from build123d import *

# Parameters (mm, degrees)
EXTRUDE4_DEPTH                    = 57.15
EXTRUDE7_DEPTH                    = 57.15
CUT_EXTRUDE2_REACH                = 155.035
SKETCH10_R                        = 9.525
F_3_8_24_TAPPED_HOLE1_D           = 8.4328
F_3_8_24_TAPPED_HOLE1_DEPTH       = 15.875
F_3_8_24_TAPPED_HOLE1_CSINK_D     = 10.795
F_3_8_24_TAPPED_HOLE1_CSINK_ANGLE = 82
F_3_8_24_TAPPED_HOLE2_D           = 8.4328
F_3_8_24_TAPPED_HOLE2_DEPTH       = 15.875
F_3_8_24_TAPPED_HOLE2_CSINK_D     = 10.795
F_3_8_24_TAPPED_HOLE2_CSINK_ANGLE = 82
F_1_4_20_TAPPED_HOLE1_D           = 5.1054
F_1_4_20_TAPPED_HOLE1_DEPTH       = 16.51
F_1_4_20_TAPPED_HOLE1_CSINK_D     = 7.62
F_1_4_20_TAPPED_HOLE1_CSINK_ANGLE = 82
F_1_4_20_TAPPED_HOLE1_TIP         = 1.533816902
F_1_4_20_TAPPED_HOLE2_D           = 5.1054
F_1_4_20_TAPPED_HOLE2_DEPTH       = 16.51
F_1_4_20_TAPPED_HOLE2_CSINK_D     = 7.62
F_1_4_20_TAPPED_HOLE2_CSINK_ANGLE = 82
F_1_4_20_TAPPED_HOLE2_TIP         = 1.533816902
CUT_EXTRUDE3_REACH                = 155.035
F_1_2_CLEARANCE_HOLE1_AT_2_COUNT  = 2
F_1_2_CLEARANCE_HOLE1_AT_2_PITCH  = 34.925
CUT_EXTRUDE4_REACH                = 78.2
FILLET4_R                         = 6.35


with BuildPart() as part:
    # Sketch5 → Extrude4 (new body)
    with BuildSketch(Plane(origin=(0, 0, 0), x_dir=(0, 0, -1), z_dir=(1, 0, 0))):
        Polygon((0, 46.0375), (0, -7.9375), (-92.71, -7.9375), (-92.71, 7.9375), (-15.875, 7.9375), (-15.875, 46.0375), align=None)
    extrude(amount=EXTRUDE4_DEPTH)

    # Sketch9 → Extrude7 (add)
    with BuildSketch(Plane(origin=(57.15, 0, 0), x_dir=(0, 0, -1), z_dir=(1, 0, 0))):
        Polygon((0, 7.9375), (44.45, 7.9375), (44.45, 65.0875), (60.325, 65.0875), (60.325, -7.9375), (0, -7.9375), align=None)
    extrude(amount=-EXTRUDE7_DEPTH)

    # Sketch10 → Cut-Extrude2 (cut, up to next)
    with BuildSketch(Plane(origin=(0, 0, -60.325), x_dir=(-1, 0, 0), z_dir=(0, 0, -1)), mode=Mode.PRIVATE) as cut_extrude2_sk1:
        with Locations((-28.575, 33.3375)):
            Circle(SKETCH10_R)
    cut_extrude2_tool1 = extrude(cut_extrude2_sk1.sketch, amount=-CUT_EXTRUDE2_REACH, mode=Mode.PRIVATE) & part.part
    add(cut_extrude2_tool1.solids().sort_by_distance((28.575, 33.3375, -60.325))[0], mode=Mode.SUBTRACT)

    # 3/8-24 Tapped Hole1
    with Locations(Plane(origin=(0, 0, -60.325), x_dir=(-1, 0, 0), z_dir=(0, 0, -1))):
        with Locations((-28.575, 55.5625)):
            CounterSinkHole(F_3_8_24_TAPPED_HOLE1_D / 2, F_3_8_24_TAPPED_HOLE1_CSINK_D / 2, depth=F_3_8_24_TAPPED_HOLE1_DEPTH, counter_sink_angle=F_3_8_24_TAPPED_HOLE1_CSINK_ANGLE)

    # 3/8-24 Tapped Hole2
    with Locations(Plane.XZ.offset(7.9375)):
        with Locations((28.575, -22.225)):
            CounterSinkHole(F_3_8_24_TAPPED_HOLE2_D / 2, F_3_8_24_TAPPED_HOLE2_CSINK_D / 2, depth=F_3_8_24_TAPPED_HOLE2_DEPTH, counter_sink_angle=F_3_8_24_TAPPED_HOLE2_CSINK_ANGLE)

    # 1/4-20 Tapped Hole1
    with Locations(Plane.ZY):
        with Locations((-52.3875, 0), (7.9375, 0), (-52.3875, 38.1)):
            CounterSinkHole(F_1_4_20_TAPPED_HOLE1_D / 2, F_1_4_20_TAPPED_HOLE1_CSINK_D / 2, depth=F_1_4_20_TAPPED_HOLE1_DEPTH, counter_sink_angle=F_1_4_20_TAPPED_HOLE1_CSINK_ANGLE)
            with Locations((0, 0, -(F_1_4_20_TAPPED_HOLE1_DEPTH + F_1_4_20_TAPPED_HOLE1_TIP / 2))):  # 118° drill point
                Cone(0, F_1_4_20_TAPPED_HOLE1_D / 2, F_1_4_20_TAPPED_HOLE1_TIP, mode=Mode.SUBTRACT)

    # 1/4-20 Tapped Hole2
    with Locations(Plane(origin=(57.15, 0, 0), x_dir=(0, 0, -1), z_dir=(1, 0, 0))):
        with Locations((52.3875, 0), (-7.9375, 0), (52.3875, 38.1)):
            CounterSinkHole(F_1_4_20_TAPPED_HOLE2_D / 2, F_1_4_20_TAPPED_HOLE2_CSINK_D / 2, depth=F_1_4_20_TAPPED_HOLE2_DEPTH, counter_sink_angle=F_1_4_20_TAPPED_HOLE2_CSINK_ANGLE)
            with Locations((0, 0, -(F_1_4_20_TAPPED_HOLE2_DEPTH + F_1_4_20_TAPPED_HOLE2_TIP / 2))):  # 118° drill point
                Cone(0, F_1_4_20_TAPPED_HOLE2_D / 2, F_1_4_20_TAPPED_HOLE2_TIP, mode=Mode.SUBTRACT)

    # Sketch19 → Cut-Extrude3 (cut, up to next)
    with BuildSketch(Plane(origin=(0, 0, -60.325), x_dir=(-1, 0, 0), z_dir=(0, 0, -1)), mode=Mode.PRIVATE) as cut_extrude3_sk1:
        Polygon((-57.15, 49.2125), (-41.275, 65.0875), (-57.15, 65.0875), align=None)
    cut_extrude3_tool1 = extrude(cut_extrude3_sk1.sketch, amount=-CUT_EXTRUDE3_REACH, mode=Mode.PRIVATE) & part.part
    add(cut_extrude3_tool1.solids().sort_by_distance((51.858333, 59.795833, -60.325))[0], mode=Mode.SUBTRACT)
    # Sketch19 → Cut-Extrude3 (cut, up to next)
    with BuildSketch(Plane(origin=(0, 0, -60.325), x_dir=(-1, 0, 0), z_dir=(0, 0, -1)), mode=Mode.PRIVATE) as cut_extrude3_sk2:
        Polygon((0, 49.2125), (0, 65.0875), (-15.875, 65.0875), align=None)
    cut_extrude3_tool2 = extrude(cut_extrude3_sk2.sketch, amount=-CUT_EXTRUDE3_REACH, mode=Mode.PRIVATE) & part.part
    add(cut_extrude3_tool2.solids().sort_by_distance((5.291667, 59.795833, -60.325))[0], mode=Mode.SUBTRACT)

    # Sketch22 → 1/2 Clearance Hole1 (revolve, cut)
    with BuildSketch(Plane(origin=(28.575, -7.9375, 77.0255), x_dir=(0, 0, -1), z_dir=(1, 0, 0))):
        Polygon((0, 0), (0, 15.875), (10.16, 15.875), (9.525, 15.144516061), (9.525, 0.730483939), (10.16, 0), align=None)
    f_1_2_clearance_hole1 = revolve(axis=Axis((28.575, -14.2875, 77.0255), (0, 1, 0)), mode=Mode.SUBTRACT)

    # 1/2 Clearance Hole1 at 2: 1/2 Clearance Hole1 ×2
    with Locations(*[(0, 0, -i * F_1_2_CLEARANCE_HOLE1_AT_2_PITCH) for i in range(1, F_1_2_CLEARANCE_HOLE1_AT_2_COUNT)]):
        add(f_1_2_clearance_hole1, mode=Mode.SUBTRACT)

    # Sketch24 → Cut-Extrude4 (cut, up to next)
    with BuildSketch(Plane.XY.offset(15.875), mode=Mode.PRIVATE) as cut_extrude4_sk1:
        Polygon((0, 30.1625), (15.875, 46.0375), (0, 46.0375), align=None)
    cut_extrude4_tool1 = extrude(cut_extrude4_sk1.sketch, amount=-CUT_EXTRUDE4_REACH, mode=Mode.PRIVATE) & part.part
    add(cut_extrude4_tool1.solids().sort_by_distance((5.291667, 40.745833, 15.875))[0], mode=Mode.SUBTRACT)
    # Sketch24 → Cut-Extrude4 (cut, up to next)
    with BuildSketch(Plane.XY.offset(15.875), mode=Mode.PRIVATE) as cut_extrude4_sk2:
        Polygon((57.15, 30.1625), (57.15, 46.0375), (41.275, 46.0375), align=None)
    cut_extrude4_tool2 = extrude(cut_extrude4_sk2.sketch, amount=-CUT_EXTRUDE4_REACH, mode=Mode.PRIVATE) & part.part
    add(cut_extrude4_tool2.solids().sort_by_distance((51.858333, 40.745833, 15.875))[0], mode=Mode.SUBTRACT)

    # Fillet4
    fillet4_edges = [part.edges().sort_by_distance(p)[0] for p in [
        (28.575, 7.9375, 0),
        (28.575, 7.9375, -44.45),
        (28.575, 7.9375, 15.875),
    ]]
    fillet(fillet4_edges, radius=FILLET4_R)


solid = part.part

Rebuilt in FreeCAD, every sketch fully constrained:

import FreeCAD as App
import Part
import Sketcher
Q = App.Units.Quantity


def edges_at(feature, points):
    """Names of the edges that pass closest to the given points."""
    edges = feature.Shape.Edges
    near = lambda p: min(range(len(edges)), key=lambda i: edges[i].distToShape(Part.Vertex(*p))[0])
    return sorted({f"Edge{near(p) + 1}" for p in points})


def add_polygon(sketch, points):
    """Adds a closed chain of lines whose ends are joined by coincident constraints."""
    first, n = sketch.GeometryCount, len(points)
    for a, b in zip(points, points[1:] + points[:1]):
        sketch.addGeometry(Part.LineSegment(App.Vector(*a, 0), App.Vector(*b, 0)), False)
    for i in range(n):
        sketch.addConstraint(Sketcher.Constraint("Coincident", first + i, 2, first + (i + 1) % n, 1))

doc = App.newDocument("Part")
params = doc.addObject("Spreadsheet::Sheet", "Params")
for row, (alias, value) in enumerate([
    ("sketch1_width", "1.5 in"),
    ("sketch1_height", "3.65 in"),
    ("sketch1_width2", "2.125 in"),
    ("pad1_length", "2.25 in"),
    ("sketch2_width", "2.25 in"),
    ("sketch2_height", "1.75 in"),
    ("sketch2_width2", "0.625 in"),
    ("pad2_length", "2.25 in"),
    ("sketch3_diameter", "0.75 in"),
    ("sketch4_diameter", "0.332 in"),
    ("hole_diameter", "0.332 in"),
    ("hole_depth", "0.625 in"),
    ("hole_csink_diameter", "0.425 in"),
    ("sketch5_diameter", "0.332 in"),
    ("hole2_diameter", "0.332 in"),
    ("hole2_depth", "0.625 in"),
    ("hole2_csink_diameter", "0.425 in"),
    ("sketch6_diameter", "0.201 in"),
    ("hole3_diameter", "0.201 in"),
    ("hole3_depth", "0.65 in"),
    ("hole3_csink_diameter", "0.3 in"),
    ("sketch7_diameter", "0.201 in"),
    ("hole4_diameter", "0.201 in"),
    ("hole4_depth", "0.65 in"),
    ("hole4_csink_diameter", "0.3 in"),
    ("sketch8_width", "0.625 in"),
    ("sketch9_width", "0.625 in"),
    ("sketch10_height", "0.4 in"),
    ("sketch10_width", "0.625 in"),
    ("groove_angle", "360 deg"),
    ("linearpattern_pitch", "1.375 in"),
    ("sketch11_width", "0.625 in"),
    ("sketch12_width", "0.625 in"),
    ("fillet_radius", "0.25 in"),
], start=1):
    params.set(f"A{row}", alias)
    params.set(f"B{row}", "=" + value)
    params.setAlias(f"B{row}", alias)

body = doc.addObject("PartDesign::Body", "Body")

sketch1 = body.newObject("Sketcher::SketchObject", "Sketch")
sketch1.AttachmentSupport = (doc.getObject("YZ_Plane"), [""])
sketch1.MapMode = "FlatFace"
add_polygon(sketch1, [(-7.9375, 0), (46.0375, 0), (46.0375, 15.875), (7.9375, 15.875), (7.9375, 92.71), (-7.9375, 92.71)])
sketch1.addConstraint(Sketcher.Constraint("Horizontal", 0))
sketch1.addConstraint(Sketcher.Constraint("Vertical", 1))
sketch1.addConstraint(Sketcher.Constraint("Horizontal", 2))
sketch1.addConstraint(Sketcher.Constraint("Vertical", 3))
sketch1.addConstraint(Sketcher.Constraint("Horizontal", 4))
sketch1.addConstraint(Sketcher.Constraint("Vertical", 5))
sketch1.addConstraint(Sketcher.Constraint("PointOnObject", 0, 2, -1))
sketch1.addConstraint(Sketcher.Constraint("Equal", 4, 1))
sketch1.addConstraint(Sketcher.Constraint("DistanceX", 2, 2, 2, 1, Q("1.5 in")))
sketch1.addConstraint(Sketcher.Constraint("DistanceY", 5, 2, 5, 1, Q("3.65 in")))
sketch1.addConstraint(Sketcher.Constraint("DistanceX", 0, 1, 0, 2, Q("2.125 in")))
sketch1.addConstraint(Sketcher.Constraint("DistanceX", -1, 1, 0, 2, Q("1.8125 in")))
sketch1.setExpression("Constraints[14]", "Params.sketch1_width")
sketch1.setExpression("Constraints[15]", "Params.sketch1_height")
sketch1.setExpression("Constraints[16]", "Params.sketch1_width2")
pad1 = body.newObject("PartDesign::Pad", "Pad")
pad1.Profile = sketch1
pad1.setExpression("Length", "Params.pad1_length")

sketch2 = body.newObject("Sketcher::SketchObject", "Sketch001")
sketch2.AttachmentSupport = (doc.getObject("YZ_Plane"), [""])
sketch2.MapMode = "FlatFace"
sketch2.AttachmentOffset = App.Placement(App.Vector(0, 0, 2.25 * 25.4), App.Rotation())
add_polygon(sketch2, [(7.9375, -44.45), (7.9375, 0), (-7.9375, 0), (-7.9375, -60.325), (65.0875, -60.325), (65.0875, -44.45)])
sketch2.addConstraint(Sketcher.Constraint("Vertical", 0))
sketch2.addConstraint(Sketcher.Constraint("Horizontal", 1))
sketch2.addConstraint(Sketcher.Constraint("Vertical", 2))
sketch2.addConstraint(Sketcher.Constraint("Horizontal", 3))
sketch2.addConstraint(Sketcher.Constraint("Vertical", 4))
sketch2.addConstraint(Sketcher.Constraint("Horizontal", 5))
sketch2.addConstraint(Sketcher.Constraint("Symmetric", 0, 2, 1, 2, -1, 1))
sketch2.addConstraint(Sketcher.Constraint("Equal", 1, 4))
sketch2.addConstraint(Sketcher.Constraint("DistanceX", 5, 2, 5, 1, Q("2.25 in")))
sketch2.addConstraint(Sketcher.Constraint("DistanceY", 0, 1, 0, 2, Q("1.75 in")))
sketch2.addConstraint(Sketcher.Constraint("DistanceX", 1, 2, 1, 1, Q("0.625 in")))
sketch2.setExpression("Constraints[14]", "Params.sketch2_width")
sketch2.setExpression("Constraints[15]", "Params.sketch2_height")
sketch2.setExpression("Constraints[16]", "Params.sketch2_width2")
pad2 = body.newObject("PartDesign::Pad", "Pad001")
pad2.Profile = sketch2
pad2.setExpression("Length", "Params.pad2_length")
pad2.Reversed = True

sketch3 = body.newObject("Sketcher::SketchObject", "Sketch002")
sketch3.AttachmentSupport = (doc.getObject("XY_Plane"), [""])
sketch3.MapMode = "FlatFace"
sketch3.AttachmentOffset = App.Placement(App.Vector(0, 0, -2.375 * 25.4), App.Rotation())
sketch3.addGeometry(Part.Circle(App.Vector(28.575, 33.3375, 0), App.Vector(0, 0, 1), 9.525), False)
sketch3.addConstraint(Sketcher.Constraint("Diameter", 0, Q("0.75 in")))
sketch3.addConstraint(Sketcher.Constraint("DistanceX", -1, 1, 0, 3, Q("1.125 in")))
sketch3.addConstraint(Sketcher.Constraint("DistanceY", -1, 1, 0, 3, Q("1.3125 in")))
sketch3.setExpression("Constraints[0]", "Params.sketch3_diameter")
pocket1 = body.newObject("PartDesign::Pocket", "Pocket")
pocket1.Profile = sketch3
pocket1.Type = "UpToFirst"
pocket1.Reversed = True

sketch4 = body.newObject("Sketcher::SketchObject", "Sketch003")
sketch4.AttachmentSupport = (doc.getObject("XY_Plane"), [""])
sketch4.MapMode = "FlatFace"
sketch4.AttachmentOffset = App.Placement(App.Vector(0, 0, -2.375 * 25.4), App.Rotation())
sketch4.addGeometry(Part.Circle(App.Vector(28.575, 55.5625, 0), App.Vector(0, 0, 1), 4.2164), False)
sketch4.addConstraint(Sketcher.Constraint("Diameter", 0, Q("0.332 in")))
sketch4.addConstraint(Sketcher.Constraint("DistanceX", -1, 1, 0, 3, Q("1.125 in")))
sketch4.addConstraint(Sketcher.Constraint("DistanceY", -1, 1, 0, 3, Q("2.1875 in")))
sketch4.setExpression("Constraints[0]", "Params.sketch4_diameter")
doc.recompute()
hole = body.newObject("PartDesign::Hole", "Hole")
hole.Profile = sketch4
hole.ThreadType = "None"
hole.setExpression("Diameter", "Params.hole_diameter")
hole.DepthType = "Dimension"
hole.setExpression("Depth", "Params.hole_depth")
hole.DrillPoint = "Flat"
hole.HoleCutType = "Countersink"
hole.setExpression("HoleCutDiameter", "Params.hole_csink_diameter")
hole.HoleCutCountersinkAngle = 82
hole.Reversed = True

sketch5 = body.newObject("Sketcher::SketchObject", "Sketch004")
sketch5.AttachmentSupport = (doc.getObject("XZ_Plane"), [""])
sketch5.MapMode = "FlatFace"
sketch5.AttachmentOffset = App.Placement(App.Vector(0, 0, 0.3125 * 25.4), App.Rotation())
sketch5.addGeometry(Part.Circle(App.Vector(28.575, -22.225, 0), App.Vector(0, 0, 1), 4.2164), False)
sketch5.addConstraint(Sketcher.Constraint("Diameter", 0, Q("0.332 in")))
sketch5.addConstraint(Sketcher.Constraint("DistanceX", -1, 1, 0, 3, Q("1.125 in")))
sketch5.addConstraint(Sketcher.Constraint("DistanceY", 0, 3, -1, 1, Q("0.875 in")))
sketch5.setExpression("Constraints[0]", "Params.sketch5_diameter")
doc.recompute()
hole2 = body.newObject("PartDesign::Hole", "Hole001")
hole2.Profile = sketch5
hole2.ThreadType = "None"
hole2.setExpression("Diameter", "Params.hole2_diameter")
hole2.DepthType = "Dimension"
hole2.setExpression("Depth", "Params.hole2_depth")
hole2.DrillPoint = "Flat"
hole2.HoleCutType = "Countersink"
hole2.setExpression("HoleCutDiameter", "Params.hole2_csink_diameter")
hole2.HoleCutCountersinkAngle = 82

sketch6 = body.newObject("Sketcher::SketchObject", "Sketch005")
sketch6.AttachmentSupport = (doc.getObject("YZ_Plane"), [""])
sketch6.MapMode = "FlatFace"
sketch6.addGeometry(Part.Circle(App.Vector(0, -52.3875, 0), App.Vector(0, 0, 1), 2.5527), False)
sketch6.addGeometry(Part.Circle(App.Vector(0, 7.9375, 0), App.Vector(0, 0, 1), 2.5527), False)
sketch6.addGeometry(Part.Circle(App.Vector(38.1, -52.3875, 0), App.Vector(0, 0, 1), 2.5527), False)
sketch6.addConstraint(Sketcher.Constraint("Equal", 0, 1))
sketch6.addConstraint(Sketcher.Constraint("Equal", 1, 2))
sketch6.addConstraint(Sketcher.Constraint("PointOnObject", 0, 3, -2))
sketch6.addConstraint(Sketcher.Constraint("PointOnObject", 1, 3, -2))
sketch6.addConstraint(Sketcher.Constraint("Horizontal", 0, 3, 2, 3))
sketch6.addConstraint(Sketcher.Constraint("Diameter", 0, Q("0.201 in")))
sketch6.addConstraint(Sketcher.Constraint("DistanceX", -1, 1, 2, 3, Q("1.5 in")))
sketch6.addConstraint(Sketcher.Constraint("DistanceY", 0, 3, -1, 1, Q("2.0625 in")))
sketch6.addConstraint(Sketcher.Constraint("DistanceY", -1, 1, 1, 3, Q("0.3125 in")))
sketch6.setExpression("Constraints[5]", "Params.sketch6_diameter")
doc.recompute()
hole3 = body.newObject("PartDesign::Hole", "Hole002")
hole3.Profile = sketch6
hole3.ThreadType = "None"
hole3.setExpression("Diameter", "Params.hole3_diameter")
hole3.DepthType = "Dimension"
hole3.setExpression("Depth", "Params.hole3_depth")
hole3.DrillPoint = "Angled"
hole3.DrillPointAngle = 118
hole3.HoleCutType = "Countersink"
hole3.setExpression("HoleCutDiameter", "Params.hole3_csink_diameter")
hole3.HoleCutCountersinkAngle = 82
hole3.Reversed = True

sketch7 = body.newObject("Sketcher::SketchObject", "Sketch006")
sketch7.AttachmentSupport = (doc.getObject("YZ_Plane"), [""])
sketch7.MapMode = "FlatFace"
sketch7.AttachmentOffset = App.Placement(App.Vector(0, 0, 2.25 * 25.4), App.Rotation())
sketch7.addGeometry(Part.Circle(App.Vector(0, -52.3875, 0), App.Vector(0, 0, 1), 2.5527), False)
sketch7.addGeometry(Part.Circle(App.Vector(0, 7.9375, 0), App.Vector(0, 0, 1), 2.5527), False)
sketch7.addGeometry(Part.Circle(App.Vector(38.1, -52.3875, 0), App.Vector(0, 0, 1), 2.5527), False)
sketch7.addConstraint(Sketcher.Constraint("Equal", 0, 1))
sketch7.addConstraint(Sketcher.Constraint("Equal", 1, 2))
sketch7.addConstraint(Sketcher.Constraint("PointOnObject", 0, 3, -2))
sketch7.addConstraint(Sketcher.Constraint("PointOnObject", 1, 3, -2))
sketch7.addConstraint(Sketcher.Constraint("Horizontal", 0, 3, 2, 3))
sketch7.addConstraint(Sketcher.Constraint("Diameter", 0, Q("0.201 in")))
sketch7.addConstraint(Sketcher.Constraint("DistanceX", -1, 1, 2, 3, Q("1.5 in")))
sketch7.addConstraint(Sketcher.Constraint("DistanceY", 0, 3, -1, 1, Q("2.0625 in")))
sketch7.addConstraint(Sketcher.Constraint("DistanceY", -1, 1, 1, 3, Q("0.3125 in")))
sketch7.setExpression("Constraints[5]", "Params.sketch7_diameter")
doc.recompute()
hole4 = body.newObject("PartDesign::Hole", "Hole003")
hole4.Profile = sketch7
hole4.ThreadType = "None"
hole4.setExpression("Diameter", "Params.hole4_diameter")
hole4.DepthType = "Dimension"
hole4.setExpression("Depth", "Params.hole4_depth")
hole4.DrillPoint = "Angled"
hole4.DrillPointAngle = 118
hole4.HoleCutType = "Countersink"
hole4.setExpression("HoleCutDiameter", "Params.hole4_csink_diameter")
hole4.HoleCutCountersinkAngle = 82

sketch8 = body.newObject("Sketcher::SketchObject", "Sketch007")
sketch8.AttachmentSupport = (doc.getObject("XY_Plane"), [""])
sketch8.MapMode = "FlatFace"
sketch8.AttachmentOffset = App.Placement(App.Vector(0, 0, -2.375 * 25.4), App.Rotation())
add_polygon(sketch8, [(57.15, 49.2125), (41.275, 65.0875), (57.15, 65.0875)])
sketch8.addConstraint(Sketcher.Constraint("Horizontal", 1))
sketch8.addConstraint(Sketcher.Constraint("Vertical", 2))
sketch8.addConstraint(Sketcher.Constraint("Equal", 1, 2))
sketch8.addConstraint(Sketcher.Constraint("DistanceX", 1, 1, 1, 2, Q("0.625 in")))
sketch8.addConstraint(Sketcher.Constraint("DistanceX", -1, 1, 1, 2, Q("2.25 in")))
sketch8.addConstraint(Sketcher.Constraint("DistanceY", -1, 1, 0, 2, Q("2.5625 in")))
sketch8.setExpression("Constraints[6]", "Params.sketch8_width")
pocket2 = body.newObject("PartDesign::Pocket", "Pocket001")
pocket2.Profile = sketch8
pocket2.Type = "UpToFirst"
pocket2.Reversed = True

sketch9 = body.newObject("Sketcher::SketchObject", "Sketch008")
sketch9.AttachmentSupport = (doc.getObject("XY_Plane"), [""])
sketch9.MapMode = "FlatFace"
sketch9.AttachmentOffset = App.Placement(App.Vector(0, 0, -2.375 * 25.4), App.Rotation())
add_polygon(sketch9, [(0, 49.2125), (0, 65.0875), (15.875, 65.0875)])
sketch9.addConstraint(Sketcher.Constraint("Vertical", 0))
sketch9.addConstraint(Sketcher.Constraint("Horizontal", 1))
sketch9.addConstraint(Sketcher.Constraint("PointOnObject", 0, 2, -2))
sketch9.addConstraint(Sketcher.Constraint("Equal", 1, 0))
sketch9.addConstraint(Sketcher.Constraint("DistanceX", 1, 1, 1, 2, Q("0.625 in")))
sketch9.addConstraint(Sketcher.Constraint("DistanceY", -1, 1, 0, 2, Q("2.5625 in")))
sketch9.setExpression("Constraints[7]", "Params.sketch9_width")
pocket3 = body.newObject("PartDesign::Pocket", "Pocket002")
pocket3.Profile = sketch9
pocket3.Type = "UpToFirst"
pocket3.Reversed = True

sketch10 = body.newObject("Sketcher::SketchObject", "Sketch009")
sketch10.AttachmentSupport = (doc.getObject("YZ_Plane"), [""])
sketch10.MapMode = "FlatFace"
sketch10.AttachmentOffset = App.Placement(App.Vector(0, 0, 1.125 * 25.4), App.Rotation())
add_polygon(sketch10, [(7.9375, 77.0255), (-7.9375, 77.0255), (-7.9375, 66.8655), (-7.207016, 67.5005), (7.207016, 67.5005), (7.9375, 66.8655)])
sketch10.addGeometry(Part.LineSegment(App.Vector(-7.9375, 77.0255, 0), App.Vector(7.9375, 77.0255, 0)), True)
sketch10.addConstraint(Sketcher.Constraint("Horizontal", 0))
sketch10.addConstraint(Sketcher.Constraint("Vertical", 1))
sketch10.addConstraint(Sketcher.Constraint("Horizontal", 3))
sketch10.addConstraint(Sketcher.Constraint("Vertical", 5))
sketch10.addConstraint(Sketcher.Constraint("Horizontal", 6))
sketch10.addConstraint(Sketcher.Constraint("Coincident", 6, 1, 0, 2))
sketch10.addConstraint(Sketcher.Constraint("Symmetric", 1, 2, 4, 2, -2))
sketch10.addConstraint(Sketcher.Constraint("Vertical", 4, 2, 6, 2))
sketch10.addConstraint(Sketcher.Constraint("Equal", 2, 4))
sketch10.addConstraint(Sketcher.Constraint("DistanceY", 1, 2, 1, 1, Q("0.4 in")))
sketch10.addConstraint(Sketcher.Constraint("Angle", 2, Q("41 deg")))
sketch10.addConstraint(Sketcher.Constraint("DistanceX", 0, 2, 0, 1, Q("0.625 in")))
sketch10.addConstraint(Sketcher.Constraint("DistanceY", 1, 2, 2, 2, Q("0.025 in")))
sketch10.addConstraint(Sketcher.Constraint("DistanceY", -1, 1, 0, 2, Q("3.0325 in")))
sketch10.setExpression("Constraints[15]", "Params.sketch10_height")
sketch10.setExpression("Constraints[17]", "Params.sketch10_width")
groove = body.newObject("PartDesign::Groove", "Groove")
groove.Profile = sketch10
groove.ReferenceAxis = (sketch10, ["Axis0"])
groove.setExpression("Angle", "Params.groove_angle")
doc.recompute()

linearpattern = body.newObject("PartDesign::LinearPattern", "LinearPattern")
linearpattern.Originals = [groove]
linearpattern.Direction = (doc.getObject("Z_Axis"), [""])
linearpattern.Mode = "offset"
linearpattern.setExpression("Offset", "Params.linearpattern_pitch")
linearpattern.Occurrences = 2
linearpattern.Reversed = True
body.Tip = linearpattern

sketch11 = body.newObject("Sketcher::SketchObject", "Sketch010")
sketch11.AttachmentSupport = (doc.getObject("XY_Plane"), [""])
sketch11.MapMode = "FlatFace"
sketch11.AttachmentOffset = App.Placement(App.Vector(0, 0, 0.625 * 25.4), App.Rotation())
add_polygon(sketch11, [(0, 30.1625), (15.875, 46.0375), (0, 46.0375)])
sketch11.addConstraint(Sketcher.Constraint("Horizontal", 1))
sketch11.addConstraint(Sketcher.Constraint("Vertical", 2))
sketch11.addConstraint(Sketcher.Constraint("PointOnObject", 1, 2, -2))
sketch11.addConstraint(Sketcher.Constraint("Equal", 1, 2))
sketch11.addConstraint(Sketcher.Constraint("DistanceX", 1, 2, 1, 1, Q("0.625 in")))
sketch11.addConstraint(Sketcher.Constraint("DistanceY", -1, 1, 0, 2, Q("1.8125 in")))
sketch11.setExpression("Constraints[7]", "Params.sketch11_width")
pocket4 = body.newObject("PartDesign::Pocket", "Pocket003")
pocket4.Profile = sketch11
pocket4.Type = "UpToFirst"

sketch12 = body.newObject("Sketcher::SketchObject", "Sketch011")
sketch12.AttachmentSupport = (doc.getObject("XY_Plane"), [""])
sketch12.MapMode = "FlatFace"
sketch12.AttachmentOffset = App.Placement(App.Vector(0, 0, 0.625 * 25.4), App.Rotation())
add_polygon(sketch12, [(57.15, 30.1625), (57.15, 46.0375), (41.275, 46.0375)])
sketch12.addConstraint(Sketcher.Constraint("Vertical", 0))
sketch12.addConstraint(Sketcher.Constraint("Horizontal", 1))
sketch12.addConstraint(Sketcher.Constraint("Equal", 1, 0))
sketch12.addConstraint(Sketcher.Constraint("DistanceX", 1, 2, 1, 1, Q("0.625 in")))
sketch12.addConstraint(Sketcher.Constraint("DistanceX", -1, 1, 0, 2, Q("2.25 in")))
sketch12.addConstraint(Sketcher.Constraint("DistanceY", -1, 1, 0, 2, Q("1.8125 in")))
sketch12.setExpression("Constraints[6]", "Params.sketch12_width")
pocket5 = body.newObject("PartDesign::Pocket", "Pocket004")
pocket5.Profile = sketch12
pocket5.Type = "UpToFirst"
doc.recompute()

fillet = body.newObject("PartDesign::Fillet", "Fillet")
fillet.Base = (pocket5, edges_at(pocket5, [(28.575, 7.938, 0), (28.575, 7.938, -44.45), (28.575, 7.938, 15.875)]))
fillet.setExpression("Radius", "Params.fillet_radius")

doc.recompute()
